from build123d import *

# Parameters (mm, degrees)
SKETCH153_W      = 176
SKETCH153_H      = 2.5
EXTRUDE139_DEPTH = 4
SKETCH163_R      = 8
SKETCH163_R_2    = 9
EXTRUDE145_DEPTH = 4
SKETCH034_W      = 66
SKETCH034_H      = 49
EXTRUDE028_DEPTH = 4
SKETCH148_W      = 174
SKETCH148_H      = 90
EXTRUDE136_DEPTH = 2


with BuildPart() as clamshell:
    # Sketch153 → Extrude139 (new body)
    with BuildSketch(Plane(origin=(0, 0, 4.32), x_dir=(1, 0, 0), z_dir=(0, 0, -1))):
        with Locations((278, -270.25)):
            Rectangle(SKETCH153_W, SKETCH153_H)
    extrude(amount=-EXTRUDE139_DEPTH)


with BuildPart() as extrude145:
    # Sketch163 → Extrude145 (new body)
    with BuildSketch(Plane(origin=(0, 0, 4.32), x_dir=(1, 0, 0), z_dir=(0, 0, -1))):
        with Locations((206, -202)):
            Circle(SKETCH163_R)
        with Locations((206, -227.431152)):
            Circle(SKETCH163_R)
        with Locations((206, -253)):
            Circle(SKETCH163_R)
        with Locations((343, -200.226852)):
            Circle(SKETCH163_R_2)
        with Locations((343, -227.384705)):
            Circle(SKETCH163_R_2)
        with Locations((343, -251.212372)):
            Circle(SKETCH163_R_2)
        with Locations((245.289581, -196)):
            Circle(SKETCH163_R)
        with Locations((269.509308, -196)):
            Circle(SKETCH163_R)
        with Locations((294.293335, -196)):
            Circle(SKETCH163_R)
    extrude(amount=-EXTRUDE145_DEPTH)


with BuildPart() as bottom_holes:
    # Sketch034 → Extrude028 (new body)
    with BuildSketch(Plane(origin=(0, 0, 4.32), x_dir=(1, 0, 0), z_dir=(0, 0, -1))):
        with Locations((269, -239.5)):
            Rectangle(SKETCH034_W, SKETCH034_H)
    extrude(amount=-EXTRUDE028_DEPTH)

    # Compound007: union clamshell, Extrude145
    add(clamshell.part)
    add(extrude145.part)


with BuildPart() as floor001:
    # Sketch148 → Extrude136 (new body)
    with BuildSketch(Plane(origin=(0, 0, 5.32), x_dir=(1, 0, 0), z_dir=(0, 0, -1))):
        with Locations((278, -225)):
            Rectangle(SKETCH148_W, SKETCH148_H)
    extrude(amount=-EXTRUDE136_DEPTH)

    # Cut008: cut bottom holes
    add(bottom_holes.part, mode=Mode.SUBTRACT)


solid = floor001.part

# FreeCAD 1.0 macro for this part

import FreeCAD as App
import Part
import Sketcher
from FreeCAD import Vector
Q = App.Units.Quantity


def add_polygon(sketch, points):
    """Adds a closed chain of lines whose ends are joined by coincident constraints."""
    first, n = sketch.GeometryCount, len(points)
    for a, b in zip(points, points[1:] + points[:1]):
        sketch.addGeometry(Part.LineSegment(App.Vector(*a, 0), App.Vector(*b, 0)), False)
    for i in range(n):
        sketch.addConstraint(Sketcher.Constraint("Coincident", first + i, 2, first + (i + 1) % n, 1))

doc = App.newDocument("Part")
body = doc.addObject("PartDesign::Body", "Body")

# Sketch on XY plane
sketch1 = doc.addObject("Sketcher::SketchObject", "Sketch")
body.addObject(sketch1)
sketch1.AttachmentSupport = (doc.XY_Plane, [""])
sketch1.MapMode = "FlatFace"
sketch1.AttachmentOffset = App.Placement(Vector(0, 0, 4.32), App.Rotation())
add_polygon(sketch1, [(190, 269), (190, 271.5), (366, 271.5), (366, 269)])  # lines 0-3
sketch1.addConstraint([
    Sketcher.Constraint("Vertical", 0),
    Sketcher.Constraint("Horizontal", 1),
    Sketcher.Constraint("Vertical", 2),
    Sketcher.Constraint("Horizontal", 3),
    Sketcher.Constraint("DistanceX", 1, 1, 1, 2, Q("176 mm")),
    Sketcher.Constraint("DistanceY", 0, 1, 0, 2, Q("2.5 mm")),
    Sketcher.Constraint("DistanceX", -1, 1, 0, 2, Q("190 mm")),
    Sketcher.Constraint("DistanceY", -1, 1, 2, 2, Q("269 mm")),
])
pad1 = doc.addObject("PartDesign::Pad", "Pad")
body.addObject(pad1)
pad1.Profile = sketch1
pad1.Length = 4
body2 = doc.addObject("PartDesign::Body", "Body001")
body2.AllowCompound = True

# Sketch on XY plane
sketch2 = doc.addObject("Sketcher::SketchObject", "Sketch001")
body2.addObject(sketch2)
sketch2.AttachmentSupport = (doc.getObject("XY_Plane001"), [""])
sketch2.MapMode = "FlatFace"
sketch2.AttachmentOffset = App.Placement(Vector(0, 0, 4.32), App.Rotation())
sketch2.addGeometry([
    Part.Circle(Vector(206, 202, 0), Vector(0, 0, 1), 8),  # 0
    Part.Circle(Vector(206, 227, 0), Vector(0, 0, 1), 8),  # 1
    Part.Circle(Vector(206, 253, 0), Vector(0, 0, 1), 8),  # 2
    Part.Circle(Vector(343, 200, 0), Vector(0, 0, 1), 9),  # 3
    Part.Circle(Vector(343, 227, 0), Vector(0, 0, 1), 9),  # 4
    Part.Circle(Vector(343, 251, 0), Vector(0, 0, 1), 9),  # 5
    Part.Circle(Vector(245, 196, 0), Vector(0, 0, 1), 8),  # 6
    Part.Circle(Vector(270, 196, 0), Vector(0, 0, 1), 8),  # 7
    Part.Circle(Vector(294, 196, 0), Vector(0, 0, 1), 8),  # 8
], False)
sketch2.addConstraint([
    Sketcher.Constraint("Equal", 0, 1),
    Sketcher.Constraint("Equal", 1, 2),
    Sketcher.Constraint("Equal", 3, 4),
    Sketcher.Constraint("Equal", 4, 5),
    Sketcher.Constraint("Equal", 2, 6),
    Sketcher.Constraint("Equal", 6, 7),
    Sketcher.Constraint("Equal", 7, 8),
    Sketcher.Constraint("Horizontal", 6, 3, 7, 3),
    Sketcher.Constraint("Horizontal", 7, 3, 8, 3),
    Sketcher.Constraint("Vertical", 0, 3, 1, 3),
    Sketcher.Constraint("Vertical", 1, 3, 2, 3),
    Sketcher.Constraint("Vertical", 3, 3, 4, 3),
    Sketcher.Constraint("Vertical", 4, 3, 5, 3),
    Sketcher.Constraint("Diameter", 0, Q("16 mm")),
    Sketcher.Constraint("Diameter", 3, Q("18 mm")),
    Sketcher.Constraint("DistanceX", -1, 1, 0, 3, Q("206 mm")),
    Sketcher.Constraint("DistanceY", -1, 1, 0, 3, Q("202 mm")),
    Sketcher.Constraint("DistanceY", -1, 1, 2, 3, Q("253 mm")),
    Sketcher.Constraint("DistanceX", -1, 1, 3, 3, Q("343 mm")),
    Sketcher.Constraint("DistanceY", -1, 1, 6, 3, Q("196 mm")),
    Sketcher.Constraint("DistanceY", 3, 3, 1, 3, Q("27.2043 mm")),
    Sketcher.Constraint("DistanceY", -1, 1, 1, 3, Q("227.431152 mm")),
    Sketcher.Constraint("DistanceY", -1, 1, 5, 3, Q("251.212372 mm")),
    Sketcher.Constraint("DistanceX", -1, 1, 6, 3, Q("245.289581 mm")),
    Sketcher.Constraint("DistanceY", -1, 1, 4, 3, Q("227.384705 mm")),
    Sketcher.Constraint("DistanceX", -1, 1, 7, 3, Q("269.509308 mm")),
    Sketcher.Constraint("DistanceX", -1, 1, 8, 3, Q("294.293335 mm")),
])
pad2 = doc.addObject("PartDesign::Pad", "Pad001")
body2.addObject(pad2)
pad2.Profile = sketch2
pad2.Length = 4
body3 = doc.addObject("PartDesign::Body", "Body002")
body3.AllowCompound = True

# Sketch on XY plane
sketch3 = doc.addObject("Sketcher::SketchObject", "Sketch002")
body3.addObject(sketch3)
sketch3.AttachmentSupport = (doc.getObject("XY_Plane002"), [""])
sketch3.MapMode = "FlatFace"
sketch3.AttachmentOffset = App.Placement(Vector(0, 0, 4.32), App.Rotation())
add_polygon(sketch3, [(236, 215), (236, 264), (302, 264), (302, 215)])  # lines 0-3
sketch3.addConstraint([
    Sketcher.Constraint("Vertical", 0),
    Sketcher.Constraint("Horizontal", 1),
    Sketcher.Constraint("Vertical", 2),
    Sketcher.Constraint("Horizontal", 3),
    Sketcher.Constraint("DistanceX", 1, 1, 1, 2, Q("66 mm")),
    Sketcher.Constraint("DistanceY", 0, 1, 0, 2, Q("49 mm")),
    Sketcher.Constraint("DistanceX", -1, 1, 0, 2, Q("236 mm")),
    Sketcher.Constraint("DistanceY", -1, 1, 0, 2, Q("264 mm")),
])
pad3 = doc.addObject("PartDesign::Pad", "Pad002")
body3.addObject(pad3)
pad3.Profile = sketch3
pad3.Length = 4
doc.recompute()

boolean = doc.addObject("PartDesign::Boolean", "Boolean")
body3.addObject(boolean)
boolean.Type = "Fuse"
boolean.addObjects([body])
doc.recompute()

boolean2 = doc.addObject("PartDesign::Boolean", "Boolean001")
body3.addObject(boolean2)
boolean2.Type = "Fuse"
boolean2.addObjects([body2])
body4 = doc.addObject("PartDesign::Body", "Body003")

# Sketch on XY plane
sketch4 = doc.addObject("Sketcher::SketchObject", "Sketch003")
body4.addObject(sketch4)
sketch4.AttachmentSupport = (doc.getObject("XY_Plane003"), [""])
sketch4.MapMode = "FlatFace"
sketch4.AttachmentOffset = App.Placement(Vector(0, 0, 5.32), App.Rotation())
add_polygon(sketch4, [(191, 180), (191, 270), (365, 270), (365, 180)])  # lines 0-3
sketch4.addConstraint([
    Sketcher.Constraint("Vertical", 0),
    Sketcher.Constraint("Horizontal", 1),
    Sketcher.Constraint("Vertical", 2),
    Sketcher.Constraint("Horizontal", 3),
    Sketcher.Constraint("DistanceX", 1, 1, 1, 2, Q("174 mm")),
    Sketcher.Constraint("DistanceY", 0, 1, 0, 2, Q("90 mm")),
    Sketcher.Constraint("DistanceX", -1, 1, 0, 2, Q("191 mm")),
    Sketcher.Constraint("DistanceY", -1, 1, 0, 2, Q("270 mm")),
])
pad4 = doc.addObject("PartDesign::Pad", "Pad003")
body4.addObject(pad4)
pad4.Profile = sketch4
pad4.Length = 2
doc.recompute()

boolean3 = doc.addObject("PartDesign::Boolean", "Boolean002")
body4.addObject(boolean3)
boolean3.Type = "Cut"
boolean3.addObjects([body3])

doc.recompute()
